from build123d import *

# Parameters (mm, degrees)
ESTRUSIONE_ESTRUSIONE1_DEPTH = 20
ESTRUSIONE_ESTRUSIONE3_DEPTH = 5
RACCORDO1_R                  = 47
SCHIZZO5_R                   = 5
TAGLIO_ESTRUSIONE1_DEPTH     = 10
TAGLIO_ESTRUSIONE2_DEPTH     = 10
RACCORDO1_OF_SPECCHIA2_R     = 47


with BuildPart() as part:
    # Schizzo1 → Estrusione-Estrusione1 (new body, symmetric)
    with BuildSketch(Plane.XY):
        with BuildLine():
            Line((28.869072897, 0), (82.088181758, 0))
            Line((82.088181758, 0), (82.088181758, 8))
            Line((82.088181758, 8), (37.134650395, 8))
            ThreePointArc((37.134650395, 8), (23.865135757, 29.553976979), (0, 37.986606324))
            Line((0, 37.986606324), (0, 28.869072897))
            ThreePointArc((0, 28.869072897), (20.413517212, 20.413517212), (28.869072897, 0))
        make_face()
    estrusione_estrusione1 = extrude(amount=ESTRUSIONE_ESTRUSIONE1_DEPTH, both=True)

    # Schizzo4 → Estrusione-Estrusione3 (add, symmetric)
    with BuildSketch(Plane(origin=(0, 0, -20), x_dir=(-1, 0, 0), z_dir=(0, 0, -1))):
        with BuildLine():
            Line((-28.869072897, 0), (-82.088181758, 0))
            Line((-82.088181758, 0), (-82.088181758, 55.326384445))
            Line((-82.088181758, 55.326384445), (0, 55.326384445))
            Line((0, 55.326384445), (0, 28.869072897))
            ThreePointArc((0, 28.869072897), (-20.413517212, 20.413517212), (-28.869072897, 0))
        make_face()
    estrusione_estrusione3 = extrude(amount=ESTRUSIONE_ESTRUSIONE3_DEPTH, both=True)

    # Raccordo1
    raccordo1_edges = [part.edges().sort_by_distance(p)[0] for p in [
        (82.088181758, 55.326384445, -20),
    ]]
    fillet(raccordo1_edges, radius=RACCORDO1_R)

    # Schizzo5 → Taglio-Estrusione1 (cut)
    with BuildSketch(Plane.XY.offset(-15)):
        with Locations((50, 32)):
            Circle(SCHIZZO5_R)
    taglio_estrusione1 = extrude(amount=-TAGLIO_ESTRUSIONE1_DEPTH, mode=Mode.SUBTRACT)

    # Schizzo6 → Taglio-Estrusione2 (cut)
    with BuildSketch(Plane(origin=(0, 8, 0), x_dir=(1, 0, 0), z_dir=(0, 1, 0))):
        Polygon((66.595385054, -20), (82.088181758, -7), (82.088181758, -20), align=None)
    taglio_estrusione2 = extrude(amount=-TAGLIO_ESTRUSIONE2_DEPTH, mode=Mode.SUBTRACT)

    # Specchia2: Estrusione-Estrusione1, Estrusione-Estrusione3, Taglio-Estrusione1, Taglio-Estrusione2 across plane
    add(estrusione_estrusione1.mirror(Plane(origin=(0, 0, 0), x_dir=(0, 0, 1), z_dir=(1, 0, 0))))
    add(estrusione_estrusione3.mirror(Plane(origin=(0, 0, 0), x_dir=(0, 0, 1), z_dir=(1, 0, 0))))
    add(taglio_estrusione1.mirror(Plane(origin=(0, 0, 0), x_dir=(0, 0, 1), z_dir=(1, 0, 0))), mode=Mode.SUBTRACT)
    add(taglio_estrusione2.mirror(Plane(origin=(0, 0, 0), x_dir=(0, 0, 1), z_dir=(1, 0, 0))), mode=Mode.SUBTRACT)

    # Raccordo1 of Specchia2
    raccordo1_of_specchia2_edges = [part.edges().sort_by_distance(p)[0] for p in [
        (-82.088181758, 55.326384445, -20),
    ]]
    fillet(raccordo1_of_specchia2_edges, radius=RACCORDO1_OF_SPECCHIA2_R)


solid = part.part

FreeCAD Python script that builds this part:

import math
import FreeCAD as App
import Part
import Sketcher
Q = App.Units.Quantity


def edges_at(feature, points):
    """Names of the edges that pass closest to the given points."""
    edges = feature.Shape.Edges
    near = lambda p: min(range(len(edges)), key=lambda i: edges[i].distToShape(Part.Vertex(*p))[0])
    return sorted({f"Edge{near(p) + 1}" for p in points})


def add_polygon(sketch, points):
    """Adds a closed chain of lines whose ends are joined by coincident constraints."""
    first, n = sketch.GeometryCount, len(points)
    for a, b in zip(points, points[1:] + points[:1]):
        sketch.addGeometry(Part.LineSegment(App.Vector(*a, 0), App.Vector(*b, 0)), False)
    for i in range(n):
        sketch.addConstraint(Sketcher.Constraint("Coincident", first + i, 2, first + (i + 1) % n, 1))

doc = App.newDocument("Part")
body = doc.addObject("PartDesign::Body", "Body")

# Sketch on XY plane
sketch1 = body.newObject("Sketcher::SketchObject", "Sketch")
sketch1.AttachmentSupport = (doc.getObject("XY_Plane"), [""])
sketch1.MapMode = "FlatFace"
sketch1.addGeometry([
    Part.LineSegment(App.Vector(28.869073, 0, 0), App.Vector(82.088182, 0, 0)),  # 0
    Part.LineSegment(App.Vector(82.088182, 0, 0), App.Vector(82.088182, 8, 0)),  # 1
    Part.LineSegment(App.Vector(82.088182, 8, 0), App.Vector(37.13465, 8, 0)),  # 2
    Part.ArcOfCircle(Part.Circle(App.Vector(0, 0, 0), App.Vector(0, 0, 1), 37.986606), math.radians(12.157548), math.radians(90)),  # 3
    Part.LineSegment(App.Vector(0, 37.986606, 0), App.Vector(0, 28.869073, 0)),  # 4
    Part.ArcOfCircle(Part.Circle(App.Vector(0, 0, 0), App.Vector(0, 0, 1), 28.869073), math.radians(0), math.radians(90)),  # 5
], False)
sketch1.addConstraint([
    Sketcher.Constraint("Coincident", 0, 2, 1, 1),
    Sketcher.Constraint("Coincident", 1, 2, 2, 1),
    Sketcher.Constraint("Coincident", 2, 2, 3, 1),
    Sketcher.Constraint("Coincident", 3, 2, 4, 1),
    Sketcher.Constraint("Coincident", 4, 2, 5, 2),
    Sketcher.Constraint("Coincident", 5, 1, 0, 1),
    Sketcher.Constraint("Horizontal", 0),
    Sketcher.Constraint("Vertical", 1),
    Sketcher.Constraint("Horizontal", 2),
    Sketcher.Constraint("Vertical", 4),
    Sketcher.Constraint("Coincident", 3, 3, -1, 1),
    Sketcher.Constraint("Coincident", 5, 3, -1, 1),
    Sketcher.Constraint("PointOnObject", 0, 2, -1),
    Sketcher.Constraint("PointOnObject", 3, 2, -2),
    Sketcher.Constraint("DistanceY", 1, 1, 1, 2, Q("8 mm")),
    Sketcher.Constraint("Radius", 3, Q("37.986606 mm")),
    Sketcher.Constraint("Radius", 5, Q("28.869073 mm")),
    Sketcher.Constraint("DistanceX", 0, 1, 0, 2, Q("53.219109 mm")),
])
pad1 = body.newObject("PartDesign::Pad", "Pad")
pad1.Profile = sketch1
pad1.Length = 40
pad1.Midplane = True

# Sketch on XY plane
sketch2 = body.newObject("Sketcher::SketchObject", "Sketch001")
sketch2.AttachmentSupport = (doc.getObject("XY_Plane"), [""])
sketch2.MapMode = "FlatFace"
sketch2.AttachmentOffset = App.Placement(App.Vector(0, 0, -20), App.Rotation())
sketch2.addGeometry([
    Part.LineSegment(App.Vector(82.088182, 0, 0), App.Vector(28.869073, 0, 0)),  # 0
    Part.ArcOfCircle(Part.Circle(App.Vector(0, 0, 0), App.Vector(0, 0, 1), 28.869073), math.radians(0), math.radians(90)),  # 1
    Part.LineSegment(App.Vector(0, 28.869073, 0), App.Vector(0, 55.326384, 0)),  # 2
    Part.LineSegment(App.Vector(0, 55.326384, 0), App.Vector(82.088182, 55.326384, 0)),  # 3
    Part.LineSegment(App.Vector(82.088182, 55.326384, 0), App.Vector(82.088182, 0, 0)),  # 4
], False)
sketch2.addConstraint([
    Sketcher.Constraint("Coincident", 0, 2, 1, 1),
    Sketcher.Constraint("Coincident", 1, 2, 2, 1),
    Sketcher.Constraint("Coincident", 2, 2, 3, 1),
    Sketcher.Constraint("Coincident", 3, 2, 4, 1),
    Sketcher.Constraint("Coincident", 4, 2, 0, 1),
    Sketcher.Constraint("Horizontal", 0),
    Sketcher.Constraint("Vertical", 2),
    Sketcher.Constraint("Horizontal", 3),
    Sketcher.Constraint("Vertical", 4),
    Sketcher.Constraint("Coincident", 1, 3, -1, 1),
    Sketcher.Constraint("PointOnObject", 0, 2, -1),
    Sketcher.Constraint("PointOnObject", 1, 2, -2),
    Sketcher.Constraint("Radius", 1, Q("28.869073 mm")),
    Sketcher.Constraint("DistanceX", 0, 2, 0, 1, Q("53.219109 mm")),
    Sketcher.Constraint("DistanceY", 2, 1, 2, 2, Q("26.457312 mm")),
])
pad2 = body.newObject("PartDesign::Pad", "Pad001")
pad2.Profile = sketch2
pad2.Length = 10
pad2.Midplane = True
doc.recompute()

fillet = body.newObject("PartDesign::Fillet", "Fillet")
fillet.Base = (pad2, edges_at(pad2, [(82.088, 55.326, -20)]))
fillet.Radius = 47

# Sketch on XY plane
sketch3 = body.newObject("Sketcher::SketchObject", "Sketch002")
sketch3.AttachmentSupport = (doc.getObject("XY_Plane"), [""])
sketch3.MapMode = "FlatFace"
sketch3.AttachmentOffset = App.Placement(App.Vector(0, 0, -15), App.Rotation())
sketch3.addGeometry(Part.Circle(App.Vector(50, 32, 0), App.Vector(0, 0, 1), 5), False)
sketch3.addConstraint([
    Sketcher.Constraint("Diameter", 0, Q("10 mm")),
    Sketcher.Constraint("DistanceX", -1, 1, 0, 3, Q("50 mm")),
    Sketcher.Constraint("DistanceY", -1, 1, 0, 3, Q("32 mm")),
])
pocket1 = body.newObject("PartDesign::Pocket", "Pocket")
pocket1.Profile = sketch3
pocket1.Length = 10

# Sketch on XZ plane
sketch4 = body.newObject("Sketcher::SketchObject", "Sketch003")
sketch4.AttachmentSupport = (doc.getObject("XZ_Plane"), [""])
sketch4.MapMode = "FlatFace"
sketch4.AttachmentOffset = App.Placement(App.Vector(0, 0, -8), App.Rotation())
add_polygon(sketch4, [(82.088182, 7), (66.595385, 20), (82.088182, 20)])  # lines 0-2
sketch4.addConstraint([
    Sketcher.Constraint("Horizontal", 1),
    Sketcher.Constraint("Vertical", 2),
    Sketcher.Constraint("DistanceY", 2, 2, 2, 1, Q("13 mm")),
    Sketcher.Constraint("Angle", 0, Q("140 deg")),
    Sketcher.Constraint("DistanceY", -1, 1, 0, 2, Q("20 mm")),
    Sketcher.Constraint("DistanceX", -1, 1, 1, 2, Q("82.088182 mm")),
])
pocket2 = body.newObject("PartDesign::Pocket", "Pocket001")
pocket2.Profile = sketch4
pocket2.Length = 10
pocket2.Reversed = True
doc.recompute()

mirrored = body.newObject("PartDesign::Mirrored", "Mirrored")
mirrored.Originals = [pad1, pad2, pocket1, pocket2]
mirrored.MirrorPlane = (doc.getObject("YZ_Plane"), [""])
body.Tip = mirrored
doc.recompute()

fillet2 = body.newObject("PartDesign::Fillet", "Fillet001")
fillet2.Base = (mirrored, edges_at(mirrored, [(-82.088, 55.326, -20)]))
fillet2.Radius = 47

doc.recompute()
